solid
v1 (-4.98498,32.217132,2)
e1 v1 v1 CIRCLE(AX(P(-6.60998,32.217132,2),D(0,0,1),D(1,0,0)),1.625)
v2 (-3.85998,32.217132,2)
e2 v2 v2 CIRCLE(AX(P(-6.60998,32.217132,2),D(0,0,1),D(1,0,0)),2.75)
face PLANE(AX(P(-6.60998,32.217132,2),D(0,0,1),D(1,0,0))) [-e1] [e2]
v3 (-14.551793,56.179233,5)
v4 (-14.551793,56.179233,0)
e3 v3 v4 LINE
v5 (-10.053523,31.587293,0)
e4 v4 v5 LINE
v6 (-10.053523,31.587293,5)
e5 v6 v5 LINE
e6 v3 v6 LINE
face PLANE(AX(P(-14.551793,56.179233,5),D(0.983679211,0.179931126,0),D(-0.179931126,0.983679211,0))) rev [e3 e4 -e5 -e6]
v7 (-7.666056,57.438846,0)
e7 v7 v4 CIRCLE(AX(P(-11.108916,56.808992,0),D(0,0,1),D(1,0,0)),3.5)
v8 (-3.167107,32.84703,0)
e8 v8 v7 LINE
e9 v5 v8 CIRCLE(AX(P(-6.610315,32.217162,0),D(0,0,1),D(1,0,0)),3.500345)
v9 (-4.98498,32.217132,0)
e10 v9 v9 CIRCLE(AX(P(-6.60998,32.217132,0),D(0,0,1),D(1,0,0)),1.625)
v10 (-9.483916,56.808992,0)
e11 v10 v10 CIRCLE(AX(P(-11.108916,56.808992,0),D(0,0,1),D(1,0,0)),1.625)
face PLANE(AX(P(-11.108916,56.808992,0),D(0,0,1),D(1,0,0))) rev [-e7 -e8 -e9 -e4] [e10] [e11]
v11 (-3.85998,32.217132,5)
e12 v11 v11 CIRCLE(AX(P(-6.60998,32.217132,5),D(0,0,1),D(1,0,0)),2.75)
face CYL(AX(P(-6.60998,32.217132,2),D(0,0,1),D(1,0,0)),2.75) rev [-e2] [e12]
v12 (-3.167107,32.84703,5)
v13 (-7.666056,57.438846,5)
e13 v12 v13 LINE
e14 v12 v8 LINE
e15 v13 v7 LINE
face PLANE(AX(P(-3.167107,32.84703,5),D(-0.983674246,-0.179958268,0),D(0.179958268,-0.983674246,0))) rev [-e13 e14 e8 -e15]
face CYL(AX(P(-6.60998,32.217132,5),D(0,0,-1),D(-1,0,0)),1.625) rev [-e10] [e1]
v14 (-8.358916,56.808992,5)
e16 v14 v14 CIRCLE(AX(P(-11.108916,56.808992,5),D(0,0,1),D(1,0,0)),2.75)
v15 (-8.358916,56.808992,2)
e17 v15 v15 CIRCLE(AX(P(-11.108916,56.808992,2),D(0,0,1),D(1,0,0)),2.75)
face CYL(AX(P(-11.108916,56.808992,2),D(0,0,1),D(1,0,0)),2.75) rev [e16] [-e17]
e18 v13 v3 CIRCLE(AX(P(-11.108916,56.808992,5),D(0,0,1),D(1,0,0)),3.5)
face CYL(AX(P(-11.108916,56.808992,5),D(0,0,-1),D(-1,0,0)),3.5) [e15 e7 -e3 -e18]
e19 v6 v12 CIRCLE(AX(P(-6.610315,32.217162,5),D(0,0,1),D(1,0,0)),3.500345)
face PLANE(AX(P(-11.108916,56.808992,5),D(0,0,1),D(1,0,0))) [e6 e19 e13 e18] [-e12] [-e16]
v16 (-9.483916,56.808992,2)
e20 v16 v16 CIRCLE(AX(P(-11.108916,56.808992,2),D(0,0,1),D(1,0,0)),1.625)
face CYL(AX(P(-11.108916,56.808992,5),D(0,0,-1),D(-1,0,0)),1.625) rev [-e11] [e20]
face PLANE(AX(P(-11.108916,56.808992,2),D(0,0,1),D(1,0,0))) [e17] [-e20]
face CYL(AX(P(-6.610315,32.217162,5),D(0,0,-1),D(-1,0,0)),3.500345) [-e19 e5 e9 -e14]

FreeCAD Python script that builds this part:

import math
import FreeCAD as App
import Part
import Sketcher

V = App.Vector
Q = App.Units.Quantity

doc = App.newDocument("Part")
body = doc.addObject("PartDesign::Body", "Body")

sketch1 = body.newObject("Sketcher::SketchObject", "Sketch")
sketch1.AttachmentSupport = (doc.getObject("XY_Plane"), [""])
sketch1.MapMode = "FlatFace"
sketch1.addGeometry(Part.LineSegment(V(-14.551793, 56.179233, 0), V(-10.053523, 31.587293, 0)), False)
sketch1.addGeometry(Part.ArcOfCircle(Part.Circle(V(-6.610315, 32.217162, 0), V(0, 0, 1), 3.500345), math.radians(-169.633461), math.radians(10.366539)), False)
sketch1.addGeometry(Part.LineSegment(V(-3.167107, 32.84703, 0), V(-7.666056, 57.438846, 0)), False)
sketch1.addGeometry(Part.ArcOfCircle(Part.Circle(V(-11.108916, 56.808992, 0), V(0, 0, 1), 3.5), math.radians(10.367329), math.radians(190.365748)), False)
sketch1.addGeometry(Part.Circle(V(-6.60998, 32.217132, 0), V(0, 0, 1), 1.625), False)
sketch1.addGeometry(Part.Circle(V(-11.108916, 56.808992, 0), V(0, 0, 1), 1.625), False)
sketch1.addConstraint(Sketcher.Constraint("Coincident", 0, 2, 1, 1))
sketch1.addConstraint(Sketcher.Constraint("Coincident", 1, 2, 2, 1))
sketch1.addConstraint(Sketcher.Constraint("Coincident", 2, 2, 3, 1))
sketch1.addConstraint(Sketcher.Constraint("Coincident", 3, 2, 0, 1))
sketch1.addConstraint(Sketcher.Constraint("Coincident", 5, 3, 3, 3))
sketch1.addConstraint(Sketcher.Constraint("Radius", 3, Q("3.5 mm")))
sketch1.addConstraint(Sketcher.Constraint("Diameter", 4, Q("3.25 mm")))
sketch1.addConstraint(Sketcher.Constraint("Diameter", 5, Q("3.25 mm")))
sketch1.addConstraint(Sketcher.Constraint("Radius", 1, Q("3.500345 mm")))
sketch1.addConstraint(Sketcher.Constraint("DistanceX", 3, 3, 1, 3, Q("4.498601 mm")))
sketch1.addConstraint(Sketcher.Constraint("DistanceY", 0, 2, 3, 3, Q("25.221698 mm")))
sketch1.addConstraint(Sketcher.Constraint("DistanceY", 4, 3, 1, 2, Q("0.629898 mm")))
sketch1.addConstraint(Sketcher.Constraint("Distance", 0, Q("24.999959 mm")))
sketch1.addConstraint(Sketcher.Constraint("Distance", 2, Q("24.999959 mm")))
sketch1.addConstraint(Sketcher.Constraint("DistanceY", -1, 1, 1, 3, Q("32.217162 mm")))
sketch1.addConstraint(Sketcher.Constraint("DistanceY", -1, 1, 3, 3, Q("56.808992 mm")))
sketch1.addConstraint(Sketcher.Constraint("DistanceX", 4, 3, -1, 1, Q("6.60998 mm")))
sketch1.addConstraint(Sketcher.Constraint("DistanceY", -1, 1, 4, 3, Q("32.217132 mm")))
sketch1.addConstraint(Sketcher.Constraint("DistanceX", 1, 3, -1, 1, Q("6.610315 mm")))
pad1 = body.newObject("PartDesign::Pad", "Pad")
pad1.Profile = sketch1
pad1.Length = 5

sketch2 = body.newObject("Sketcher::SketchObject", "Sketch001")
sketch2.AttachmentSupport = (doc.getObject("XY_Plane"), [""])
sketch2.MapMode = "FlatFace"
sketch2.AttachmentOffset = App.Placement(V(0, 0, 5), App.Rotation())
sketch2.addGeometry(Part.Circle(V(-11.1, 56.8, 0), V(0, 0, 1), 2.8), False)
sketch2.addGeometry(Part.Circle(V(-6.6, 32.2, 0), V(0, 0, 1), 2.8), False)
sketch2.addConstraint(Sketcher.Constraint("Equal", 0, 1))
sketch2.addConstraint(Sketcher.Constraint("Diameter", 0, Q("5.5 mm")))
sketch2.addConstraint(Sketcher.Constraint("DistanceY", -1, 1, 0, 3, Q("56.808992 mm")))
sketch2.addConstraint(Sketcher.Constraint("DistanceX", 1, 3, -1, 1, Q("6.60998 mm")))
sketch2.addConstraint(Sketcher.Constraint("DistanceY", -1, 1, 1, 3, Q("32.217132 mm")))
sketch2.addConstraint(Sketcher.Constraint("DistanceX", 0, 3, -1, 1, Q("11.108916 mm")))
pocket1 = body.newObject("PartDesign::Pocket", "Pocket")
pocket1.Profile = sketch2
pocket1.Length = 3

doc.recompute()
